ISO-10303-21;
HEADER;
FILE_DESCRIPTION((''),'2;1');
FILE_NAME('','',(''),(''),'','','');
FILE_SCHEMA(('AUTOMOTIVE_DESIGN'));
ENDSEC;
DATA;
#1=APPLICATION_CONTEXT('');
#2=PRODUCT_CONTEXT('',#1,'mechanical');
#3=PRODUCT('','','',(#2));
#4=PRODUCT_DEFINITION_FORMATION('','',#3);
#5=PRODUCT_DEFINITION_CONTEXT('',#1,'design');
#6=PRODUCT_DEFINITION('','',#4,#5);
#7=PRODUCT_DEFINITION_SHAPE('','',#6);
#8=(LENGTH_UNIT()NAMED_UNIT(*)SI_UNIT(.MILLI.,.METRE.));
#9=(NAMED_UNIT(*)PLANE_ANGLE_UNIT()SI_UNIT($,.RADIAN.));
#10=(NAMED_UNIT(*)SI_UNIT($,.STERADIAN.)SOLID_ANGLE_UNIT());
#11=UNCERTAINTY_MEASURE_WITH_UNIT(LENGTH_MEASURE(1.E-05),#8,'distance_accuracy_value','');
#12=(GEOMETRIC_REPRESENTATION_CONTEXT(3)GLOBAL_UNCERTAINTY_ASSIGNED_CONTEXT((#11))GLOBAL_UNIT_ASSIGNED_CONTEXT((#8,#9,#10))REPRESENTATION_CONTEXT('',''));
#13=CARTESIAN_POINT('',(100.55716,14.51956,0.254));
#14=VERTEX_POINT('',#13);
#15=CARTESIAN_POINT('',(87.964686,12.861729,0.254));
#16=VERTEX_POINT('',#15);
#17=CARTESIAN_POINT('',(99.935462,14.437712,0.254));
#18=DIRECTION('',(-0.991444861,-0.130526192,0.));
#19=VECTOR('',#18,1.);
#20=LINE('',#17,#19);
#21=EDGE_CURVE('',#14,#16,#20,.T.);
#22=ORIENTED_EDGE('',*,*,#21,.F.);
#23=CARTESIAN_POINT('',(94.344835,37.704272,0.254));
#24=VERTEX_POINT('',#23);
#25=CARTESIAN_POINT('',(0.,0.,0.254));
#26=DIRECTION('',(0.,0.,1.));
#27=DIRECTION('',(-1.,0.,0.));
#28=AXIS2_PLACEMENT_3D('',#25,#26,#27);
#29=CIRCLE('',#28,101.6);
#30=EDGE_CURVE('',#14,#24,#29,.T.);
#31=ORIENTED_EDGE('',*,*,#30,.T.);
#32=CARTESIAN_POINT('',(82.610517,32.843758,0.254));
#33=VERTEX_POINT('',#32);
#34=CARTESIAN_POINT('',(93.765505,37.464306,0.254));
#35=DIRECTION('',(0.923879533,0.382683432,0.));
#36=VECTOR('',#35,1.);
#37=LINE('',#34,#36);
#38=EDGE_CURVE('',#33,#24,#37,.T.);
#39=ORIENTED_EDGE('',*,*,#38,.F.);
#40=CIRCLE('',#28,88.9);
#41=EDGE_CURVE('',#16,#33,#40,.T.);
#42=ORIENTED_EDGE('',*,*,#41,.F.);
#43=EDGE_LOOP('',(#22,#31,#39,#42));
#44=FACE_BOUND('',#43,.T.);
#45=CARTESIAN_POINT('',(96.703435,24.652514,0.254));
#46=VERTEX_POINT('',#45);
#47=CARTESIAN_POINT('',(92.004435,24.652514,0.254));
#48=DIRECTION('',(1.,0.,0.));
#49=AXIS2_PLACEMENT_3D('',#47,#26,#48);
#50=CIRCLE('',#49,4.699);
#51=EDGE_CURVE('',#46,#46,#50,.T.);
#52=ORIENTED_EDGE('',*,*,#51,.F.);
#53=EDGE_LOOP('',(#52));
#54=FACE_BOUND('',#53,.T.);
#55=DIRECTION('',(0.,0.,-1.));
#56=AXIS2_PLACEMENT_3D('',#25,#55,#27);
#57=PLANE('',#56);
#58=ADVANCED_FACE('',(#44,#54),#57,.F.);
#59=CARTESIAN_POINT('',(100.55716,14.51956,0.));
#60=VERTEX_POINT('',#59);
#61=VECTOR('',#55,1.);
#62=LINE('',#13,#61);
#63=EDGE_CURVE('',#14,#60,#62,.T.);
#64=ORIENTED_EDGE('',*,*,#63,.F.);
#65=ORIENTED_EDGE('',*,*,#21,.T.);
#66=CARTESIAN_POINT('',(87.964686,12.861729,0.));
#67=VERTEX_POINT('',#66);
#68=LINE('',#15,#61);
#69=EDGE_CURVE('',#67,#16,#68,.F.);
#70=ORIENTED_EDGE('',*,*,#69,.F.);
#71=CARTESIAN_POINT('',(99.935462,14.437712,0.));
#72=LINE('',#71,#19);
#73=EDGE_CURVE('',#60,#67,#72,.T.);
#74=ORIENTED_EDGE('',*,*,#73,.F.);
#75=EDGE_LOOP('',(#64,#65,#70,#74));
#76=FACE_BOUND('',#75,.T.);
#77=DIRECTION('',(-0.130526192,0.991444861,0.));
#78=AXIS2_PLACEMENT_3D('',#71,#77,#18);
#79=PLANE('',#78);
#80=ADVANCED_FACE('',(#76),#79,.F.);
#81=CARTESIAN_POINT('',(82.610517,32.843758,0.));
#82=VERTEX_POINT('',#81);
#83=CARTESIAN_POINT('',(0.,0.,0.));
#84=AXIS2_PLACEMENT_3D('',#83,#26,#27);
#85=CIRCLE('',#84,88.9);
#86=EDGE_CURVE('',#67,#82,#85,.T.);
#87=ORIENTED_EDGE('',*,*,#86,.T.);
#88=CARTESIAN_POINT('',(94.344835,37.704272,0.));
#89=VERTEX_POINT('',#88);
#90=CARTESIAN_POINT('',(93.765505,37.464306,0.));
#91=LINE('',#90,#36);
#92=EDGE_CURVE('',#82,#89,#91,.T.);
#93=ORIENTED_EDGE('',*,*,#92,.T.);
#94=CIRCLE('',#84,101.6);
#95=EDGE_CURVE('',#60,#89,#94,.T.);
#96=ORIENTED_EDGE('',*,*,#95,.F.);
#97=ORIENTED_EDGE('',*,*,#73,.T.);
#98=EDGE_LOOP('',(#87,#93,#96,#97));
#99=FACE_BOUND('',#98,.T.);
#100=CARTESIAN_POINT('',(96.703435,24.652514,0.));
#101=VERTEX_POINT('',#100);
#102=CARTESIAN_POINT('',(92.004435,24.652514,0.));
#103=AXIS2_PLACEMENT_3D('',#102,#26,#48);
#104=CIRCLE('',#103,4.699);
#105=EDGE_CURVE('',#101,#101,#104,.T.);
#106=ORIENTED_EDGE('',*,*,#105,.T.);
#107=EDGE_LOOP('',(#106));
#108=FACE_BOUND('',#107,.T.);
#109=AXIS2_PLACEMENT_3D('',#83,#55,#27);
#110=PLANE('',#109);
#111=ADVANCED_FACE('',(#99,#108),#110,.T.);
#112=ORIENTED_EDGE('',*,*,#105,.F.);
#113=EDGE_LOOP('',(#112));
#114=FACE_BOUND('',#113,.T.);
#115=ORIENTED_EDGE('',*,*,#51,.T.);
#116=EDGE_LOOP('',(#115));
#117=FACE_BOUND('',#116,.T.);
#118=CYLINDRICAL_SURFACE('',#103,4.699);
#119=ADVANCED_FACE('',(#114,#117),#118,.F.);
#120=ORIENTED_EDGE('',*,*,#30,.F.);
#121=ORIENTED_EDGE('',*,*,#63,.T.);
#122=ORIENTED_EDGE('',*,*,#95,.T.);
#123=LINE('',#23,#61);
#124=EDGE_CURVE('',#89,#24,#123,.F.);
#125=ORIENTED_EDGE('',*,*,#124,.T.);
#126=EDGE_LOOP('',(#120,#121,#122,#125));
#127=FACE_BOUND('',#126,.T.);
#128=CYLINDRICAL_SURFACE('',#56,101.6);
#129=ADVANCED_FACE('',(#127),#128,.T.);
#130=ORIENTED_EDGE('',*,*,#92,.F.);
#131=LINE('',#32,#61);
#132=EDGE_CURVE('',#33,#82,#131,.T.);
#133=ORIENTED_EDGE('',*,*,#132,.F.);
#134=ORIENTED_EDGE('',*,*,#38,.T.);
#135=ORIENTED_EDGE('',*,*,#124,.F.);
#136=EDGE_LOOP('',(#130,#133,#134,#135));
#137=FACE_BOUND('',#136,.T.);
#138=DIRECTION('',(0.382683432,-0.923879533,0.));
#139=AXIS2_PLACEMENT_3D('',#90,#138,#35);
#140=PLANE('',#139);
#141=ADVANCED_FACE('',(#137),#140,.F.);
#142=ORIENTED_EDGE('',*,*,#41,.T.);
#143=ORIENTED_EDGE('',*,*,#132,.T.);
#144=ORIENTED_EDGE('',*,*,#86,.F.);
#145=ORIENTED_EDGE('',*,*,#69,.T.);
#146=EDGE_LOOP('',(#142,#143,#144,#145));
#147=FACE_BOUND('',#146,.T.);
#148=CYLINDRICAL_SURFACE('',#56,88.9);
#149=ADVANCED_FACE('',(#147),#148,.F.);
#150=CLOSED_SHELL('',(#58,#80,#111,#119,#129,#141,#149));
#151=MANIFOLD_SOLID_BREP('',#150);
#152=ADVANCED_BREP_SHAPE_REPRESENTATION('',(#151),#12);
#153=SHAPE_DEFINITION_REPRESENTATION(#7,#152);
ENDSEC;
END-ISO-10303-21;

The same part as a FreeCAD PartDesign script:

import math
import FreeCAD as App
import Part
import Sketcher
Q = App.Units.Quantity


def add_polygon(sketch, points):
    """Adds a closed chain of lines whose ends are joined by coincident constraints."""
    first, n = sketch.GeometryCount, len(points)
    for a, b in zip(points, points[1:] + points[:1]):
        sketch.addGeometry(Part.LineSegment(App.Vector(*a, 0), App.Vector(*b, 0)), False)
    for i in range(n):
        sketch.addConstraint(Sketcher.Constraint("Coincident", first + i, 2, first + (i + 1) % n, 1))

doc = App.newDocument("Part")
params = doc.addObject("Spreadsheet::Sheet", "Params")
for row, (alias, value) in enumerate([
    ("sketch1_radius", "4 in"),
    ("sketch1_radius2", "3.5 in"),
    ("sketch1_radius3", "0.625 in"),
    ("sketch1_radius4", "1.125 in"),
    ("pad1_length", "0.01 in"),
    ("sketch2_diameter", "0.37 in"),
    ("sketch3_width", "0.1 in"),
    ("sketch3_length", "0.1 in"),
    ("sketch3_length2", "0.05 in"),
    ("sketch3_height", "0.025 in"),
    ("sketch3_length3", "0.025 in"),
    ("sketch4_radius", "3.45 in"),
    ("sketch4_radius2", "4.05 in"),
], start=1):
    params.set(f"A{row}", alias)
    params.set(f"B{row}", "=" + value)
    params.setAlias(f"B{row}", alias)

body = doc.addObject("PartDesign::Body", "Body")

# Sketch on XY plane
sketch1 = body.newObject("Sketcher::SketchObject", "Sketch")
sketch1.AttachmentSupport = (doc.getObject("XY_Plane"), [""])
sketch1.MapMode = "FlatFace"
sketch1.addGeometry([
    Part.LineSegment(App.Vector(67.211467, 76.191723, 0), App.Vector(8.696654, 17.67691, 0)),  # 0
    Part.LineSegment(App.Vector(8.696654, 17.67691, 0), App.Vector(7.228955, 14.133571, 0)),  # 1
    Part.ArcOfCircle(Part.Circle(App.Vector(0, 0, 0), App.Vector(0, 0, 1), 15.875), math.radians(-17.911434), math.radians(62.911434)),  # 2
    Part.LineSegment(App.Vector(15.105587, -4.882301, 0), App.Vector(18.648926, -6.35, 0)),  # 3
    Part.LineSegment(App.Vector(18.648926, -6.35, 0), App.Vector(101.401368, -6.35, 0)),  # 4
    Part.ArcOfCircle(Part.Circle(App.Vector(0, 0, 0), App.Vector(0, 0, 1), 101.6), math.radians(-3.583322), math.radians(48.583322)),  # 5
    Part.ArcOfCircle(Part.Circle(App.Vector(0, 0, 0), App.Vector(0, 0, 1), 88.9), math.radians(4.096044), math.radians(40.903956)),  # 6
    Part.LineSegment(App.Vector(88.672924, 6.35, 0), App.Vector(27.860512, 6.35, 0)),  # 7
    Part.ArcOfCircle(Part.Circle(App.Vector(0, 0, 0), App.Vector(0, 0, 1), 28.575), math.radians(12.839588), math.radians(32.160412)),  # 8
    Part.LineSegment(App.Vector(24.190485, 15.210229, 0), App.Vector(67.191354, 58.211098, 0)),  # 9
], False)
sketch1.addConstraint([
    Sketcher.Constraint("Coincident", 0, 2, 1, 1),
    Sketcher.Constraint("Coincident", 1, 2, 2, 2),
    Sketcher.Constraint("Coincident", 2, 1, 3, 1),
    Sketcher.Constraint("Coincident", 3, 2, 4, 1),
    Sketcher.Constraint("Coincident", 4, 2, 5, 1),
    Sketcher.Constraint("Coincident", 5, 2, 0, 1),
    Sketcher.Constraint("Coincident", 6, 1, 7, 1),
    Sketcher.Constraint("Coincident", 7, 2, 8, 1),
    Sketcher.Constraint("Coincident", 8, 2, 9, 1),
    Sketcher.Constraint("Coincident", 9, 2, 6, 2),
    Sketcher.Constraint("Horizontal", 4),
    Sketcher.Constraint("Horizontal", 7),
    Sketcher.Constraint("Coincident", 2, 3, -1, 1),
    Sketcher.Constraint("Coincident", 5, 3, -1, 1),
    Sketcher.Constraint("Coincident", 6, 3, -1, 1),
    Sketcher.Constraint("Coincident", 8, 3, -1, 1),
    Sketcher.Constraint("Perpendicular", 1, 3),
    Sketcher.Constraint("Parallel", 0, 9),
    Sketcher.Constraint("Equal", 1, 3),
    Sketcher.Constraint("Radius", 5, Q("4 in")),
    Sketcher.Constraint("Radius", 6, Q("3.5 in")),
    Sketcher.Constraint("Angle", 0, Q("-135 deg")),
    Sketcher.Constraint("Radius", 2, Q("0.625 in")),
    Sketcher.Constraint("Radius", 8, Q("1.125 in")),
    Sketcher.Constraint("Angle", 1, Q("-112.5 deg")),
    Sketcher.Constraint("DistanceY", 4, 2, 6, 1, Q("0.5 in")),
    Sketcher.Constraint("DistanceY", 3, 2, -1, 1, Q("0.25 in")),
    Sketcher.Constraint("DistanceY", 2, 1, -1, 1, 4.882301),
    Sketcher.Constraint("DistanceY", -1, 1, 9, 2, 58.211098),
    Sketcher.Constraint("DistanceX", 5, 2, 4, 2, 34.189901),
])
sketch1.setExpression("Constraints[19]", "Params.sketch1_radius")
sketch1.setExpression("Constraints[20]", "Params.sketch1_radius2")
sketch1.setExpression("Constraints[22]", "Params.sketch1_radius3")
sketch1.setExpression("Constraints[23]", "Params.sketch1_radius4")
pad1 = body.newObject("PartDesign::Pad", "Pad")
pad1.Profile = sketch1
pad1.setExpression("Length", "Params.pad1_length")

# Sketch on XY plane
sketch2 = body.newObject("Sketcher::SketchObject", "Sketch001")
sketch2.AttachmentSupport = (doc.getObject("XY_Plane"), [""])
sketch2.MapMode = "FlatFace"
sketch2.AttachmentOffset = App.Placement(App.Vector(0, 0, 0.01 * 25.4), App.Rotation())
sketch2.addGeometry([
    Part.Circle(App.Vector(22.225, 0, 0), App.Vector(0, 0, 1), 4.699),  # 0
    Part.Circle(App.Vector(36.195, 0, 0), App.Vector(0, 0, 1), 4.699),  # 1
    Part.Circle(App.Vector(61.722, 0, 0), App.Vector(0, 0, 1), 4.699),  # 2
    Part.Circle(App.Vector(75.692, 0, 0), App.Vector(0, 0, 1), 4.699),  # 3
    Part.Circle(App.Vector(95.25, 0, 0), App.Vector(0, 0, 1), 4.699),  # 4
    Part.Circle(App.Vector(15.715448, 15.715448, 0), App.Vector(0, 0, 1), 4.699),  # 5
    Part.Circle(App.Vector(25.59373, 25.59373, 0), App.Vector(0, 0, 1), 4.699),  # 6
    Part.Circle(App.Vector(43.644045, 43.644045, 0), App.Vector(0, 0, 1), 4.699),  # 7
    Part.Circle(App.Vector(53.522326, 53.522326, 0), App.Vector(0, 0, 1), 4.699),  # 8
    Part.Circle(App.Vector(92.004435, 24.652514, 0), App.Vector(0, 0, 1), 4.699),  # 9
    Part.Circle(App.Vector(82.48892, 47.625, 0), App.Vector(0, 0, 1), 4.699),  # 10
    Part.Circle(App.Vector(67.351921, 67.351921, 0), App.Vector(0, 0, 1), 4.699),  # 11
], False)
sketch2.addConstraint([
    Sketcher.Constraint("Equal", 0, 1),
    Sketcher.Constraint("Equal", 1, 2),
    Sketcher.Constraint("Equal", 2, 3),
    Sketcher.Constraint("Equal", 3, 4),
    Sketcher.Constraint("Equal", 4, 5),
    Sketcher.Constraint("Equal", 5, 6),
    Sketcher.Constraint("Equal", 6, 7),
    Sketcher.Constraint("Equal", 7, 8),
    Sketcher.Constraint("Equal", 8, 9),
    Sketcher.Constraint("Equal", 9, 10),
    Sketcher.Constraint("Equal", 10, 11),
    Sketcher.Constraint("PointOnObject", 0, 3, -1),
    Sketcher.Constraint("PointOnObject", 1, 3, -1),
    Sketcher.Constraint("PointOnObject", 2, 3, -1),
    Sketcher.Constraint("PointOnObject", 3, 3, -1),
    Sketcher.Constraint("PointOnObject", 4, 3, -1),
    Sketcher.Constraint("Diameter", 0, Q("0.37 in")),
    Sketcher.Constraint("DistanceX", -1, 1, 2, 3, Q("2.43 in")),
    Sketcher.Constraint("DistanceX", -1, 1, 3, 3, Q("2.98 in")),
    Sketcher.Constraint("DistanceX", -1, 1, 4, 3, Q("3.75 in")),
    Sketcher.Constraint("DistanceX", 0, 3, 1, 3, Q("0.55 in")),
    Sketcher.Constraint("DistanceX", -1, 1, 0, 3, Q("0.875 in")),
    Sketcher.Constraint("DistanceY", -1, 1, 10, 3, Q("1.875 in")),
    Sketcher.Constraint("DistanceX", 11, 3, 10, 3, 15.136999),
    Sketcher.Constraint("DistanceX", -1, 1, 5, 3, 15.715448),
    Sketcher.Constraint("DistanceY", -1, 1, 5, 3, 15.715448),
    Sketcher.Constraint("DistanceX", -1, 1, 6, 3, 25.59373),
    Sketcher.Constraint("DistanceY", -1, 1, 6, 3, 25.59373),
    Sketcher.Constraint("DistanceX", -1, 1, 10, 3, 82.48892),
    Sketcher.Constraint("DistanceY", -1, 1, 11, 3, 67.351921),
    Sketcher.Constraint("DistanceX", 7, 3, 8, 3, 9.878282),
    Sketcher.Constraint("DistanceY", 7, 3, 8, 3, 9.878282),
    Sketcher.Constraint("DistanceX", 5, 3, 8, 3, 37.806878),
    Sketcher.Constraint("DistanceY", 5, 3, 8, 3, 37.806878),
    Sketcher.Constraint("DistanceX", 8, 3, 9, 3, 38.482108),
    Sketcher.Constraint("DistanceY", 9, 3, 7, 3, 18.991531),
])
sketch2.setExpression("Constraints[16]", "Params.sketch2_diameter")
pocket1 = body.newObject("PartDesign::Pocket", "Pocket")
pocket1.Profile = sketch2
pocket1.Type = "ThroughAll"

# Sketch on XY plane
sketch3 = body.newObject("Sketcher::SketchObject", "Sketch002")
sketch3.AttachmentSupport = (doc.getObject("XY_Plane"), [""])
sketch3.MapMode = "FlatFace"
sketch3.AttachmentOffset = App.Placement(App.Vector(0, 0, 0.01 * 25.4), App.Rotation())
add_polygon(sketch3, [(17.062487, 26.042743), (15.266435, 24.246692), (15.715448, 23.797679), (17.511499, 25.59373)])  # lines 0-3
add_polygon(sketch3, [(44.991083, 53.971339), (43.195032, 52.175288), (43.644045, 51.726275), (45.440096, 53.522326)])  # lines 4-7
add_polygon(sketch3, [(27.94, -5.715), (27.94, -6.35), (30.48, -6.35), (30.48, -5.715)])  # lines 8-11
add_polygon(sketch3, [(67.437, -5.715), (67.437, -6.35), (69.977, -6.35), (69.977, -5.715)])  # lines 12-15
add_polygon(sketch3, [(31.026785, 40.007041), (29.230734, 38.21099), (29.679746, 37.761977), (31.475798, 39.558028)])  # lines 16-19
add_polygon(sketch3, [(56.845021, 65.825277), (55.04897, 64.029226), (55.497983, 63.580213), (57.294034, 65.376265)])  # lines 20-23
add_polygon(sketch3, [(47.6885, -5.715), (47.6885, -6.35), (50.2285, -6.35), (50.2285, -5.715)])  # lines 24-27
add_polygon(sketch3, [(84.201, -5.715), (84.201, -6.35), (86.741, -6.35), (86.741, -5.715)])  # lines 28-31
add_polygon(sketch3, [(99.935462, 14.437712), (100.266999, 11.919442), (101.526134, 12.08521), (101.194597, 14.60348)])  # lines 32-35
add_polygon(sketch3, [(93.765505, 37.464306), (94.938832, 37.950314), (93.966816, 40.296968), (92.793489, 39.81096)])  # lines 36-39
add_polygon(sketch3, [(79.327793, 62.471156), (80.874047, 60.456039), (81.881606, 61.229166), (80.335352, 63.244283)])  # lines 40-43
add_polygon(sketch3, [(13.593916, 7.005423), (14.565932, 4.658769), (15.739259, 5.144776), (14.767243, 7.49143)])  # lines 44-47
sketch3.addConstraint([
    Sketcher.Constraint("Vertical", 8),
    Sketcher.Constraint("Horizontal", 9),
    Sketcher.Constraint("Vertical", 10),
    Sketcher.Constraint("Horizontal", 11),
    Sketcher.Constraint("Vertical", 12),
    Sketcher.Constraint("Horizontal", 13),
    Sketcher.Constraint("Vertical", 14),
    Sketcher.Constraint("Horizontal", 15),
    Sketcher.Constraint("Vertical", 24),
    Sketcher.Constraint("Horizontal", 25),
    Sketcher.Constraint("Vertical", 26),
    Sketcher.Constraint("Horizontal", 27),
    Sketcher.Constraint("Vertical", 28),
    Sketcher.Constraint("Horizontal", 29),
    Sketcher.Constraint("Vertical", 30),
    Sketcher.Constraint("Horizontal", 31),
    Sketcher.Constraint("Perpendicular", 0, 1),
    Sketcher.Constraint("Perpendicular", 1, 2),
    Sketcher.Constraint("Perpendicular", 2, 3),
    Sketcher.Constraint("Perpendicular", 3, 4),
    Sketcher.Constraint("Perpendicular", 4, 5),
    Sketcher.Constraint("Perpendicular", 5, 6),
    Sketcher.Constraint("Perpendicular", 6, 7),
    Sketcher.Constraint("Perpendicular", 7, 16),
    Sketcher.Constraint("Perpendicular", 16, 17),
    Sketcher.Constraint("Perpendicular", 17, 18),
    Sketcher.Constraint("Perpendicular", 18, 19),
    Sketcher.Constraint("Perpendicular", 19, 20),
    Sketcher.Constraint("Perpendicular", 20, 21),
    Sketcher.Constraint("Perpendicular", 21, 22),
    Sketcher.Constraint("Perpendicular", 22, 23),
    Sketcher.Constraint("Perpendicular", 32, 33),
    Sketcher.Constraint("Perpendicular", 33, 34),
    Sketcher.Constraint("Perpendicular", 34, 35),
    Sketcher.Constraint("Perpendicular", 36, 37),
    Sketcher.Constraint("Perpendicular", 37, 38),
    Sketcher.Constraint("Perpendicular", 38, 39),
    Sketcher.Constraint("Perpendicular", 40, 41),
    Sketcher.Constraint("Perpendicular", 41, 42),
    Sketcher.Constraint("Perpendicular", 42, 43),
    Sketcher.Constraint("Parallel", 39, 44),
    Sketcher.Constraint("Perpendicular", 44, 45),
    Sketcher.Constraint("Perpendicular", 45, 46),
    Sketcher.Constraint("Perpendicular", 46, 47),
    Sketcher.Constraint("Horizontal", 9, 2, 12, 2),
    Sketcher.Constraint("Horizontal", 11, 2, 14, 2),
    Sketcher.Constraint("Horizontal", 13, 2, 24, 2),
    Sketcher.Constraint("Horizontal", 15, 2, 26, 2),
    Sketcher.Constraint("Horizontal", 25, 2, 28, 2),
    Sketcher.Constraint("Horizontal", 27, 2, 30, 2),
    Sketcher.Constraint("Equal", 11, 13),
    Sketcher.Constraint("Equal", 15, 25),
    Sketcher.Constraint("Equal", 27, 29),
    Sketcher.Constraint("Equal", 2, 4),
    Sketcher.Constraint("Equal", 3, 5),
    Sketcher.Constraint("Equal", 6, 16),
    Sketcher.Constraint("Equal", 7, 17),
    Sketcher.Constraint("Equal", 18, 20),
    Sketcher.Constraint("Equal", 19, 21),
    Sketcher.Constraint("Equal", 22, 32),
    Sketcher.Constraint("Equal", 35, 36),
    Sketcher.Constraint("Equal", 34, 37),
    Sketcher.Constraint("Equal", 39, 40),
    Sketcher.Constraint("Equal", 38, 41),
    Sketcher.Constraint("Equal", 42, 44),
    Sketcher.Constraint("Equal", 43, 45),
    Sketcher.Constraint("DistanceX", 9, 1, 9, 2, Q("0.1 in")),
    Sketcher.Constraint("Angle", 0, Q("-135 deg")),
    Sketcher.Constraint("Distance", 0, Q("0.1 in")),
    Sketcher.Constraint("DistanceX", -1, 1, 8, 2, Q("1.1 in")),
    Sketcher.Constraint("Angle", 32, Q("-82.5 deg")),
    Sketcher.Constraint("Angle", 36, Q("22.5 deg")),
    Sketcher.Constraint("Angle", 40, Q("-52.5 deg")),
    Sketcher.Constraint("Distance", 33, Q("0.05 in")),
    Sketcher.Constraint("DistanceY", 8, 2, 8, 1, Q("0.025 in")),
    Sketcher.Constraint("DistanceY", 8, 2, -1, 1, Q("0.25 in")),
    Sketcher.Constraint("DistanceX", 13, 2, 28, 2, Q("0.56 in")),
    Sketcher.Constraint("Distance", 1, Q("0.025 in")),
    Sketcher.Constraint("DistanceX", -1, 1, 12, 2, Q("2.655 in")),
    Sketcher.Constraint("DistanceX", -1, 1, 24, 2, Q("1.8775 in")),
    Sketcher.Constraint("DistanceX", -1, 1, 2, 2, 17.511499),
    Sketcher.Constraint("DistanceX", -1, 1, 32, 2, 100.266999),
    Sketcher.Constraint("DistanceX", 16, 2, 4, 2, 13.964298),
    Sketcher.Constraint("DistanceY", 16, 2, 4, 2, 13.964298),
    Sketcher.Constraint("DistanceX", 0, 2, 16, 2, 13.964298),
    Sketcher.Constraint("DistanceY", 0, 2, 16, 2, 13.964298),
    Sketcher.Constraint("DistanceY", 6, 2, 20, 2, 10.5069),
    Sketcher.Constraint("DistanceX", 7, 2, 21, 2, 10.5069),
    Sketcher.Constraint("DistanceY", 35, 2, 36, 2, 23.512602),
    Sketcher.Constraint("DistanceX", 36, 2, 33, 2, 6.587302),
    Sketcher.Constraint("DistanceY", 37, 2, 41, 2, 20.932198),
    Sketcher.Constraint("DistanceY", 41, 2, 22, 2, 4.147099),
    Sketcher.Constraint("DistanceY", 46, 2, 2, 2, 18.102299),
    Sketcher.Constraint("DistanceY", -1, 1, 0, 2, 24.246692),
    Sketcher.Constraint("DistanceX", -1, 1, 42, 2, 80.335352),
    Sketcher.Constraint("DistanceX", -1, 1, 45, 2, 15.739259),
])
sketch3.setExpression("Constraints[114]", "Params.sketch3_width")
sketch3.setExpression("Constraints[116]", "Params.sketch3_length")
sketch3.setExpression("Constraints[121]", "Params.sketch3_length2")
sketch3.setExpression("Constraints[122]", "Params.sketch3_height")
sketch3.setExpression("Constraints[125]", "Params.sketch3_length3")
pocket2 = body.newObject("PartDesign::Pocket", "Pocket001")
pocket2.Profile = sketch3
pocket2.Type = "ThroughAll"

# Sketch on XY plane
sketch4 = body.newObject("Sketcher::SketchObject", "Sketch003")
sketch4.AttachmentSupport = (doc.getObject("XY_Plane"), [""])
sketch4.MapMode = "FlatFace"
sketch4.AttachmentOffset = App.Placement(App.Vector(0, 0, 0.01 * 25.4), App.Rotation())
add_polygon(sketch4, [(-6.309, 89.73), (-6.309, -19.888), (115.138, -19.888), (115.138, 89.73)])  # lines 0-3
sketch4.addGeometry(Part.ArcOfCircle(Part.Circle(App.Vector(0, 0, 0), App.Vector(0, 0, 1), 87.63), math.radians(8.330403), math.radians(21.669597)), False)  # 4
sketch4.addGeometry(Part.LineSegment(App.Vector(81.437069, 32.3577, 0), App.Vector(95.518252, 38.190318, 0)), False)  # 5
sketch4.addGeometry(Part.ArcOfCircle(Part.Circle(App.Vector(0, 0, 0), App.Vector(0, 0, 1), 102.87), math.radians(8.207373), math.radians(21.792627)), False)  # 6
sketch4.addGeometry(Part.LineSegment(App.Vector(101.816392, 14.685341, 0), App.Vector(86.70542, 12.695944, 0)), False)  # 7
sketch4.addConstraint([
    Sketcher.Constraint("Coincident", 4, 2, 5, 1),
    Sketcher.Constraint("Coincident", 5, 2, 6, 2),
    Sketcher.Constraint("Coincident", 6, 1, 7, 1),
    Sketcher.Constraint("Coincident", 7, 2, 4, 1),
    Sketcher.Constraint("Vertical", 0),
    Sketcher.Constraint("Horizontal", 1),
    Sketcher.Constraint("Vertical", 2),
    Sketcher.Constraint("Horizontal", 3),
    Sketcher.Constraint("Coincident", 4, 3, -1, 1),
    Sketcher.Constraint("Coincident", 6, 3, -1, 1),
    Sketcher.Constraint("Equal", 5, 7),
    Sketcher.Constraint("Radius", 4, Q("3.45 in")),
    Sketcher.Constraint("Radius", 6, Q("4.05 in")),
    Sketcher.Constraint("Angle", 5, Q("22.5 deg")),
    Sketcher.Constraint("Angle", 7, Q("-172.5 deg")),
    Sketcher.Constraint("DistanceX", 1, 1, 1, 2, 121.447),
    Sketcher.Constraint("DistanceY", 0, 2, 0, 1, 109.618),
    Sketcher.Constraint("DistanceX", 0, 2, -1, 1, 6.309),
    Sketcher.Constraint("DistanceY", 0, 2, -1, 1, 19.888),
    Sketcher.Constraint("DistanceY", -1, 1, 4, 2, 32.3577),
])
sketch4.setExpression("Constraints[15]", "Params.sketch4_radius")
sketch4.setExpression("Constraints[16]", "Params.sketch4_radius2")
pocket3 = body.newObject("PartDesign::Pocket", "Pocket002")
pocket3.Profile = sketch4
pocket3.Type = "ThroughAll"

doc.recompute()
